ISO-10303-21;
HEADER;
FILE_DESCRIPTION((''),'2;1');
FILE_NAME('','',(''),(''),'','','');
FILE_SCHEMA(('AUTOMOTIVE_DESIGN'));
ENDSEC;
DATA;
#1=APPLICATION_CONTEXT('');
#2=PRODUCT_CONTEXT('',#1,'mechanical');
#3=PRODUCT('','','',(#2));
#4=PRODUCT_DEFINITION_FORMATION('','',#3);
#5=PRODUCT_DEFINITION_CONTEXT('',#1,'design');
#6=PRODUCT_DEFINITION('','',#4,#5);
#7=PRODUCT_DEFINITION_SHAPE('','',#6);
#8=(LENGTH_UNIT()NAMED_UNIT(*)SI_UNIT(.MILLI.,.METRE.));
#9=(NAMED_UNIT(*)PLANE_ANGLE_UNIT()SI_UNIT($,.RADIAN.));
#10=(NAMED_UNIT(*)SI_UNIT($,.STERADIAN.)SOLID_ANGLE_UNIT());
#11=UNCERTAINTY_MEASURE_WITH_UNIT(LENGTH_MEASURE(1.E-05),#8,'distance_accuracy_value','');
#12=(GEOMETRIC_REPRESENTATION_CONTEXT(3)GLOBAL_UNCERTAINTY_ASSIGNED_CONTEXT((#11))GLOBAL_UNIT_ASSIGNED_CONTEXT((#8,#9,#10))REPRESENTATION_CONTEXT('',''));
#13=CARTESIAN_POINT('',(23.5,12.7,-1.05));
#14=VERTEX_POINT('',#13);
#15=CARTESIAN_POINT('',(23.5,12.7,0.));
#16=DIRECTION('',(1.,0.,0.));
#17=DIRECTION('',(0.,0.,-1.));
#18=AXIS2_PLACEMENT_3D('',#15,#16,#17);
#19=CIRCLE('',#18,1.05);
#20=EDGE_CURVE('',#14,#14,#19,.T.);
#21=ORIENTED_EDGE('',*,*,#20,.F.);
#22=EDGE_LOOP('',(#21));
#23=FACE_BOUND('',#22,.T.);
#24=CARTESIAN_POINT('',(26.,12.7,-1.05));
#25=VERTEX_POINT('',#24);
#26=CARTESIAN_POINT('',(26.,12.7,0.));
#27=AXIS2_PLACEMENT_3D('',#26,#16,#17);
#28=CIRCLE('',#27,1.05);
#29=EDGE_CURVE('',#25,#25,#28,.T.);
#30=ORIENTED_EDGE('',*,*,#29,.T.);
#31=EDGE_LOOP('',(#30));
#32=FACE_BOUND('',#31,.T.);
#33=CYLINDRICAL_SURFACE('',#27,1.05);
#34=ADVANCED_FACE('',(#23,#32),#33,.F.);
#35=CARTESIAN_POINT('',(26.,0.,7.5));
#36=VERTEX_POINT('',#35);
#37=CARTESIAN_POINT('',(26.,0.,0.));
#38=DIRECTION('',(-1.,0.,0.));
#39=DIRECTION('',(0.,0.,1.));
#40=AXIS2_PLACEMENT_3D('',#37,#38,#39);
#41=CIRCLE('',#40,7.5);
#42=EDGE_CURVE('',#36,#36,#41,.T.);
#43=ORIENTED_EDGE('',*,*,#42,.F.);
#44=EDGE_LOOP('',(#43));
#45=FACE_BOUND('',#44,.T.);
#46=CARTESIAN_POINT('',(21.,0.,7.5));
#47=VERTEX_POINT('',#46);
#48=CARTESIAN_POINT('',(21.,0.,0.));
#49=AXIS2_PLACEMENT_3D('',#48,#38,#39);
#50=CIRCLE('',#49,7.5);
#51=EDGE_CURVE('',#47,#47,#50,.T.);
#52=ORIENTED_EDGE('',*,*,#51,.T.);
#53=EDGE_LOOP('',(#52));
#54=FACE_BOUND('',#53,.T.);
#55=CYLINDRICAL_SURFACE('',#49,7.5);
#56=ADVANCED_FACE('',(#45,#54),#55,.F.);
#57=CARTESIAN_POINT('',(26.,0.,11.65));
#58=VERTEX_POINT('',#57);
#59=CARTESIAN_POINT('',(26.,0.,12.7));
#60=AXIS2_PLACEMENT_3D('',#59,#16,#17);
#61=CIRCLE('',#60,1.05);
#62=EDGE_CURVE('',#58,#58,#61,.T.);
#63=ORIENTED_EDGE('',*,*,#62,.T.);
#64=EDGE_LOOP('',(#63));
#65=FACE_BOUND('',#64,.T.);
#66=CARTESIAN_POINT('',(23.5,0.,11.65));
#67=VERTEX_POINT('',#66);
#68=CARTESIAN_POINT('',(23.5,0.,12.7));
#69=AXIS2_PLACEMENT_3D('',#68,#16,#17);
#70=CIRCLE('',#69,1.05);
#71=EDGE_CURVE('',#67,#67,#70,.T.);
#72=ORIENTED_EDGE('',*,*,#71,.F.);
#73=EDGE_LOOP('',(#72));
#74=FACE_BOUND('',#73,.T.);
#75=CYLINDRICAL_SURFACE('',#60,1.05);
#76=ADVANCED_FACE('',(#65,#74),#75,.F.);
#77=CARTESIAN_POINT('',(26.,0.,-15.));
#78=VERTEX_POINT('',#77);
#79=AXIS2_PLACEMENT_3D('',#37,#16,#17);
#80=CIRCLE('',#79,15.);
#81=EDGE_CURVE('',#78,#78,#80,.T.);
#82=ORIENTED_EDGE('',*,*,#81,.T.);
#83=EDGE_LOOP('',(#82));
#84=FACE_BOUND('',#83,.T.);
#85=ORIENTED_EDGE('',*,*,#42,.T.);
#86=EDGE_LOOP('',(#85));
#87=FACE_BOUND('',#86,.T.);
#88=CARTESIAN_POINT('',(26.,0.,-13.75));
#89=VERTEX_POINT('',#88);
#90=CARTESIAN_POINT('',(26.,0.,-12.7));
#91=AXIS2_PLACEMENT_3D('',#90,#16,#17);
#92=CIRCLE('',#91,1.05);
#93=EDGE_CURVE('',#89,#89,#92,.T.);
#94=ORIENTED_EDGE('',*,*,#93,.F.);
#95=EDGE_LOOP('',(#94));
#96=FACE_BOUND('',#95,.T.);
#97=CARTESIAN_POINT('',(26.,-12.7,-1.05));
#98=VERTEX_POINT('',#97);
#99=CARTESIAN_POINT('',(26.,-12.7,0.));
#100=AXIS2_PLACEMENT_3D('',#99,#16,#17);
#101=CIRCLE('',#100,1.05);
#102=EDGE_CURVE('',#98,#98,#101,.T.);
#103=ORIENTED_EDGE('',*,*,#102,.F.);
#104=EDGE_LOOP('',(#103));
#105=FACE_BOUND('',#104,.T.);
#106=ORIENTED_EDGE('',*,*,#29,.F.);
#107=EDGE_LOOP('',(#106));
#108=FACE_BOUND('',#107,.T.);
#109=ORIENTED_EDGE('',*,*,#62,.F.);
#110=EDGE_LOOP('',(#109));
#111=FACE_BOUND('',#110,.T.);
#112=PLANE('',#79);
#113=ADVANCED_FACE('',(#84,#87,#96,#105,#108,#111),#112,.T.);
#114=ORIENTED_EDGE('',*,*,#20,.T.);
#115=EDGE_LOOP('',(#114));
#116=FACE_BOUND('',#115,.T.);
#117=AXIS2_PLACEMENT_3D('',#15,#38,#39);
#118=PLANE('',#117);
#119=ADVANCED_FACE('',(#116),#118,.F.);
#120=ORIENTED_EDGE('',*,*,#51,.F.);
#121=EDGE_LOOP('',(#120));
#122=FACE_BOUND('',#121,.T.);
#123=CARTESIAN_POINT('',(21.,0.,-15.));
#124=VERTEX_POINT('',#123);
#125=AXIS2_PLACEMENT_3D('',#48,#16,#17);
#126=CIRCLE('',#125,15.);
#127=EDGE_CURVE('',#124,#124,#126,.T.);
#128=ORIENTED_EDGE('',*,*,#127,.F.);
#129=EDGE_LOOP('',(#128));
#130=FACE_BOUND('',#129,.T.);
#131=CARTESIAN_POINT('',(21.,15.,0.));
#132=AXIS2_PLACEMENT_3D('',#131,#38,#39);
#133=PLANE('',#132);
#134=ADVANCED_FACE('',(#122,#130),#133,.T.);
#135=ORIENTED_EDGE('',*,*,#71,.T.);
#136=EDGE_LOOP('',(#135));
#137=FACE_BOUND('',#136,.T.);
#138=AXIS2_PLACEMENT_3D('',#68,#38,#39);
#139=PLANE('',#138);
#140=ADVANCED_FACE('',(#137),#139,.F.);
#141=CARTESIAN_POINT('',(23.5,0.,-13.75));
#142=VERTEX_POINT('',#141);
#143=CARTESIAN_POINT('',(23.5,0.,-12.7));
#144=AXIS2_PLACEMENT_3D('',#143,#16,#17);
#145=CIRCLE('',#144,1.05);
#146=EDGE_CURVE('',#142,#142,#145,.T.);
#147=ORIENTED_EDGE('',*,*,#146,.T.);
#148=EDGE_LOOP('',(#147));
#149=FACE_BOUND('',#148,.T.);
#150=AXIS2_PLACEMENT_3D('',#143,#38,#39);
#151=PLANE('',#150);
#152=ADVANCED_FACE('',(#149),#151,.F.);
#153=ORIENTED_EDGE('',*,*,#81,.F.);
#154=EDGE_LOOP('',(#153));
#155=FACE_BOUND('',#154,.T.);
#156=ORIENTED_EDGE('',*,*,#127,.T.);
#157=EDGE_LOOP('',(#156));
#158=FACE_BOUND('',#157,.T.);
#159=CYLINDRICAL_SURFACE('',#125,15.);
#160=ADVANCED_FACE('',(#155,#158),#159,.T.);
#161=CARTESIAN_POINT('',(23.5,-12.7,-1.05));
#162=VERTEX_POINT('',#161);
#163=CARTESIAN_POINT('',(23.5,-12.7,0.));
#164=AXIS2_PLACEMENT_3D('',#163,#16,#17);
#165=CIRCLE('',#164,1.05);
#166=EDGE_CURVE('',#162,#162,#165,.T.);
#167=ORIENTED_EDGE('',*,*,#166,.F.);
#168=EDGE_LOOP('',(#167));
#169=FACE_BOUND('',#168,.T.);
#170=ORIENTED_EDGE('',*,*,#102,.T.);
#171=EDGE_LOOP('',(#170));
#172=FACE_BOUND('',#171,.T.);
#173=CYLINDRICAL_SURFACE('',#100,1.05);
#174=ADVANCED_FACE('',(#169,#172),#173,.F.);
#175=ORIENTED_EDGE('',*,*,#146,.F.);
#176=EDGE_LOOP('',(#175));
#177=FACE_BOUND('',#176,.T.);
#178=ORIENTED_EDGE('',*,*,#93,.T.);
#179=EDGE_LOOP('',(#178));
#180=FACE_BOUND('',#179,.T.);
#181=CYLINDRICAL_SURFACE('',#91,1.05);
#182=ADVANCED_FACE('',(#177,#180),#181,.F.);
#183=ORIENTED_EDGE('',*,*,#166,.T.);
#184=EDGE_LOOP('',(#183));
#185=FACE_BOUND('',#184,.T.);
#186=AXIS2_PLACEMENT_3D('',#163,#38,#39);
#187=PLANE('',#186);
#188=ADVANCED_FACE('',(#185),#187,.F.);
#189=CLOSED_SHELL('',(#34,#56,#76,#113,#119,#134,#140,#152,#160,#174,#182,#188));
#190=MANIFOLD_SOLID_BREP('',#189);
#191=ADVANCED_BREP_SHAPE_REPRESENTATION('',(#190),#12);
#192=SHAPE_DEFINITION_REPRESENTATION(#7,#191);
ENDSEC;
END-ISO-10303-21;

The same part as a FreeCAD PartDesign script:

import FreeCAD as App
import Part
import Sketcher

V = App.Vector

doc = App.newDocument("Part")
body = doc.addObject("PartDesign::Body", "Body")

sketch1 = body.newObject("Sketcher::SketchObject", "Sketch")
sketch1.AttachmentSupport = (doc.getObject("XY_Plane"), [""])
sketch1.MapMode = "FlatFace"
sketch1.addGeometry([
    Part.LineSegment(V(21, 15, 0), V(21, 0, 0)),
    Part.LineSegment(V(21, 0, 0), V(26, 0, 0)),
    Part.LineSegment(V(26, 0, 0), V(26, 15, 0)),
    Part.LineSegment(V(26, 15, 0), V(21, 15, 0)),
], False)
sketch1.addConstraint([
    Sketcher.Constraint("Coincident", 0, 2, 1, 1),
    Sketcher.Constraint("Coincident", 1, 2, 2, 1),
    Sketcher.Constraint("Coincident", 2, 2, 3, 1),
    Sketcher.Constraint("Coincident", 3, 2, 0, 1),
    Sketcher.Constraint("Vertical", 0),
    Sketcher.Constraint("Horizontal", 1),
    Sketcher.Constraint("Vertical", 2),
    Sketcher.Constraint("Horizontal", 3),
    Sketcher.Constraint("PointOnObject", 0, 2, -1),
    Sketcher.Constraint("DistanceX", 1, 1, 1, 2, 5.0),
    Sketcher.Constraint("DistanceY", 0, 2, 0, 1, 15.0),
    Sketcher.Constraint("DistanceX", -1, 1, 0, 2, 21.0),
])
revolution = body.newObject("PartDesign::Revolution", "Revolution")
revolution.Profile = sketch1
revolution.ReferenceAxis = (sketch1, ["H_Axis"])
revolution.Angle = 360

sketch2 = body.newObject("Sketcher::SketchObject", "Sketch001")
sketch2.AttachmentSupport = (doc.getObject("YZ_Plane"), [""])
sketch2.MapMode = "FlatFace"
sketch2.AttachmentOffset = App.Placement(V(0, 0, 21), App.Rotation())
sketch2.addGeometry(Part.Circle(V(0, 0, 0), V(0, 0, 1), 8), False)
sketch2.addConstraint([
    Sketcher.Constraint("Coincident", 0, 3, -1, 1),
    Sketcher.Constraint("Diameter", 0, 15.0),
])
doc.recompute()
hole = body.newObject("PartDesign::Hole", "Hole")
hole.Profile = sketch2
hole.ThreadType = "None"
hole.Diameter = 15
hole.DepthType = "ThroughAll"
hole.Reversed = True

sketch3 = body.newObject("Sketcher::SketchObject", "Sketch002")
sketch3.AttachmentSupport = (doc.getObject("YZ_Plane"), [""])
sketch3.MapMode = "FlatFace"
sketch3.AttachmentOffset = App.Placement(V(0, 0, 26), App.Rotation())
sketch3.addGeometry([
    Part.Circle(V(0, 12.7, 0), V(0, 0, 1), 1.1),
    Part.Circle(V(0, -12.7, 0), V(0, 0, 1), 1.1),
    Part.Circle(V(-12.7, 0, 0), V(0, 0, 1), 1.1),
    Part.Circle(V(12.7, 0, 0), V(0, 0, 1), 1.1),
], False)
sketch3.addConstraint([
    Sketcher.Constraint("Equal", 0, 1),
    Sketcher.Constraint("Equal", 1, 2),
    Sketcher.Constraint("Equal", 2, 3),
    Sketcher.Constraint("Symmetric", 0, 3, 1, 3, -1, 1),
    Sketcher.Constraint("Symmetric", 2, 3, 3, 3, -1, 1),
    Sketcher.Constraint("PointOnObject", 0, 3, -2),
    Sketcher.Constraint("PointOnObject", 2, 3, -1),
    Sketcher.Constraint("Diameter", 0, 2.1),
    Sketcher.Constraint("DistanceY", -1, 1, 0, 3, 12.7),
    Sketcher.Constraint("DistanceX", 2, 3, -1, 1, 12.7),
])
doc.recompute()
hole2 = body.newObject("PartDesign::Hole", "Hole001")
hole2.Profile = sketch3
hole2.ThreadType = "None"
hole2.Diameter = 2.1
hole2.DepthType = "Dimension"
hole2.Depth = 2.5
hole2.DrillPoint = "Flat"

doc.recompute()
